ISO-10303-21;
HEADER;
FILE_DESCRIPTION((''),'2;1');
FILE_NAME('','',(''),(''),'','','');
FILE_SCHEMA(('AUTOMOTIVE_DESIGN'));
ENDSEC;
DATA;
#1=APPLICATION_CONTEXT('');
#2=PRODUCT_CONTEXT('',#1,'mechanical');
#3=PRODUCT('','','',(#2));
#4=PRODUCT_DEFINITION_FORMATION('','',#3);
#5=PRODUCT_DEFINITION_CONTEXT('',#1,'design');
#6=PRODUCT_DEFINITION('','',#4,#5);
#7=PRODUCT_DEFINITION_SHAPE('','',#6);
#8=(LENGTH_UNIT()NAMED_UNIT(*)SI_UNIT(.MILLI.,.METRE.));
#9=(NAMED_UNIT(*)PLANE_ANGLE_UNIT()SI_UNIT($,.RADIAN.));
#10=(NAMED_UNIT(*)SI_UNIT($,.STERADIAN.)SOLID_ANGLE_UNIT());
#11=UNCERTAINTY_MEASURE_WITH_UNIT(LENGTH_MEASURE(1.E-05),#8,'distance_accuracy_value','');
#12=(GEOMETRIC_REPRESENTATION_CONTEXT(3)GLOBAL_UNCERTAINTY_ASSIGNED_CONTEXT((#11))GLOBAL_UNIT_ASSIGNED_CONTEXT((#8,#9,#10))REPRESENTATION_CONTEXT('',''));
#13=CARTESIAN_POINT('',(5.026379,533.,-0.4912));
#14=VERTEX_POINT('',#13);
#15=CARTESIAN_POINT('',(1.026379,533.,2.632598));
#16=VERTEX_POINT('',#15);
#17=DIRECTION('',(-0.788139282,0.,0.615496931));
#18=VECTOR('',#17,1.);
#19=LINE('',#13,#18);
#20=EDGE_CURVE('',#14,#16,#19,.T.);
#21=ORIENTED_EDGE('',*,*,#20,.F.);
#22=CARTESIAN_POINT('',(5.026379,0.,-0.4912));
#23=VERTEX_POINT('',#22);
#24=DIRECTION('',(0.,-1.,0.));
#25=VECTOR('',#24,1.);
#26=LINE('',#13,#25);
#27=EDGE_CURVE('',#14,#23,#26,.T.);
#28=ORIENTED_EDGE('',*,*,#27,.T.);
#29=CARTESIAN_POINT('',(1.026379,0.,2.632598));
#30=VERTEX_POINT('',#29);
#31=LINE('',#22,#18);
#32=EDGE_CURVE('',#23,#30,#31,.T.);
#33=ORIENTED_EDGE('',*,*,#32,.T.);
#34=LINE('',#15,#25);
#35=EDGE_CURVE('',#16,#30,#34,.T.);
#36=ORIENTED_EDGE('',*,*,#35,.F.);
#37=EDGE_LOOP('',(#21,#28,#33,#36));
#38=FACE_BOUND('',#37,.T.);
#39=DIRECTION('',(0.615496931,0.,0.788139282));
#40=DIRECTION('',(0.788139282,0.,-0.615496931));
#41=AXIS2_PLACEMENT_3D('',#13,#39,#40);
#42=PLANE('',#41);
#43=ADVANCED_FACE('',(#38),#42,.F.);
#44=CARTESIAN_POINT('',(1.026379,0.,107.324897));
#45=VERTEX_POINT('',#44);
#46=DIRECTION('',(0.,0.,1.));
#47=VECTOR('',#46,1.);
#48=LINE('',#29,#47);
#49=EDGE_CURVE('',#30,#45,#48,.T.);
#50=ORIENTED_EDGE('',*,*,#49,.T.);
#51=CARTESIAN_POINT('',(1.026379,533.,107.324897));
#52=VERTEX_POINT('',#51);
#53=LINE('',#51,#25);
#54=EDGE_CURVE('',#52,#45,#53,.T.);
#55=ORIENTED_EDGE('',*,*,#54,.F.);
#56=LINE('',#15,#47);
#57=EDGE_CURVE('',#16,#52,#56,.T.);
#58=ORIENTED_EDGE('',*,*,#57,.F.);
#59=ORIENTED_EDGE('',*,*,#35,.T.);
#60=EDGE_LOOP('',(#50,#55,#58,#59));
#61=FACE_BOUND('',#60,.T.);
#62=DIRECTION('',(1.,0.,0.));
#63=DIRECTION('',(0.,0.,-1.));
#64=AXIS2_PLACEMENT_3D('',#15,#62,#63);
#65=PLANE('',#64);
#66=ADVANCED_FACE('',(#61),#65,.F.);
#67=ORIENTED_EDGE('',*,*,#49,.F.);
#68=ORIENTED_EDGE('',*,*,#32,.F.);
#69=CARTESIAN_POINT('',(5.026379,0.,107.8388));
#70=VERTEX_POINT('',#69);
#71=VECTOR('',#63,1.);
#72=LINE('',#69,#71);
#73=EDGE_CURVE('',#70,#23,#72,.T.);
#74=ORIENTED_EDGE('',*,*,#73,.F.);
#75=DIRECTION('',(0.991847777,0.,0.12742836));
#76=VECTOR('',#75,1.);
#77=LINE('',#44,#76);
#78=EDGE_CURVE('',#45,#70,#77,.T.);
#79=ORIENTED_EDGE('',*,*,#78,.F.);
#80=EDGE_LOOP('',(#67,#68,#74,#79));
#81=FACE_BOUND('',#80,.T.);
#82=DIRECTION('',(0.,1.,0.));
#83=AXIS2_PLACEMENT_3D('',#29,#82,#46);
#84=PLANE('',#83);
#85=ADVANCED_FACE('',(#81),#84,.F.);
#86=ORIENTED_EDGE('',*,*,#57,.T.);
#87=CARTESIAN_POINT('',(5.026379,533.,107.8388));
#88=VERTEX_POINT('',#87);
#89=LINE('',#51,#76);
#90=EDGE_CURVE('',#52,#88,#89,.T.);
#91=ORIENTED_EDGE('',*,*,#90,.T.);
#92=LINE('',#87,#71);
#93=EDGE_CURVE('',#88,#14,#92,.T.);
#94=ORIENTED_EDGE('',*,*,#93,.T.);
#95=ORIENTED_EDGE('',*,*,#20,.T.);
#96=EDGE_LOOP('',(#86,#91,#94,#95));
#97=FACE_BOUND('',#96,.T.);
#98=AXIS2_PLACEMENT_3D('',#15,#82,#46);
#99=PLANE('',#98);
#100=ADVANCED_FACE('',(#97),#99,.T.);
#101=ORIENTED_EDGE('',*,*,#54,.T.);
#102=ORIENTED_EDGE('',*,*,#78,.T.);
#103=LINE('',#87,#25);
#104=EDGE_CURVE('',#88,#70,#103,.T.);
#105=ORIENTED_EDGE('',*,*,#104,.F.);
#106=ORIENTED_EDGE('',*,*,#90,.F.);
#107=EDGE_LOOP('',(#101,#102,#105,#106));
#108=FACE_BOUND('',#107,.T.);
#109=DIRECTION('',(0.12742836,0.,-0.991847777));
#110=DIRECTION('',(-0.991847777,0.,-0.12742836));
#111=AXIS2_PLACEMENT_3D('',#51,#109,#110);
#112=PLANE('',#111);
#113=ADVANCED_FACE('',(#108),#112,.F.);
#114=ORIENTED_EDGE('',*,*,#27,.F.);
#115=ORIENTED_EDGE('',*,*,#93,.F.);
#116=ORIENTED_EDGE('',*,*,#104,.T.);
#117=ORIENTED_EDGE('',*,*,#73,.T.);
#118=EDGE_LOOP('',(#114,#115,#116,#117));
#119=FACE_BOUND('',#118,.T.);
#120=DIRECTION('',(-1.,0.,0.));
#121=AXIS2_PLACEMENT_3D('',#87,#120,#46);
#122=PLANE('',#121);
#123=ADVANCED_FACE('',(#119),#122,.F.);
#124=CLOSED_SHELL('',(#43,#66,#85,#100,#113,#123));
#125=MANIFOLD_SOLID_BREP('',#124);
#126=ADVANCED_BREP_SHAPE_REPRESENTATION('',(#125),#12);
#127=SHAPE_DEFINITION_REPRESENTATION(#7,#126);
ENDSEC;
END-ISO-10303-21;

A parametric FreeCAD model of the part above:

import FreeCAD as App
import Part
import Sketcher
from FreeCAD import Vector
Q = App.Units.Quantity

doc = App.newDocument("Part")
body = doc.addObject("PartDesign::Body", "Body")

# Sketch on XZ plane
sketch1 = body.newObject("Sketcher::SketchObject", "Sketch")
sketch1.AttachmentSupport = (doc.getObject("XZ_Plane"), [""])
sketch1.MapMode = "FlatFace"
sketch1.addGeometry([
    Part.LineSegment(Vector(1.026379, 2.632598, 0), Vector(1.026379, 107.324897, 0)),
    Part.LineSegment(Vector(1.026379, 107.324897, 0), Vector(5.026379, 107.8388, 0)),
    Part.LineSegment(Vector(5.026379, 107.8388, 0), Vector(5.026379, -0.4912, 0)),
    Part.LineSegment(Vector(5.026379, -0.4912, 0), Vector(1.026379, 2.632598, 0)),
], False)
sketch1.addConstraint([
    Sketcher.Constraint("Coincident", 0, 2, 1, 1),
    Sketcher.Constraint("Coincident", 1, 2, 2, 1),
    Sketcher.Constraint("Coincident", 2, 2, 3, 1),
    Sketcher.Constraint("Coincident", 3, 2, 0, 1),
    Sketcher.Constraint("Vertical", 0),
    Sketcher.Constraint("Vertical", 2),
    Sketcher.Constraint("DistanceX", 0, 2, 1, 2, Q("4 mm")),
    Sketcher.Constraint("DistanceY", 2, 2, 2, 1, Q("108.33 mm")),
    Sketcher.Constraint("DistanceY", 0, 1, 0, 2, Q("104.692299 mm")),
    Sketcher.Constraint("DistanceY", -1, 1, 1, 2, Q("107.8388 mm")),
    Sketcher.Constraint("DistanceX", -1, 1, 0, 2, Q("1.026379 mm")),
    Sketcher.Constraint("Distance", 1, Q("4.032877 mm")),
])
pad1 = body.newObject("PartDesign::Pad", "Pad")
pad1.Profile = sketch1
pad1.Length = 533
pad1.Reversed = True

doc.recompute()
